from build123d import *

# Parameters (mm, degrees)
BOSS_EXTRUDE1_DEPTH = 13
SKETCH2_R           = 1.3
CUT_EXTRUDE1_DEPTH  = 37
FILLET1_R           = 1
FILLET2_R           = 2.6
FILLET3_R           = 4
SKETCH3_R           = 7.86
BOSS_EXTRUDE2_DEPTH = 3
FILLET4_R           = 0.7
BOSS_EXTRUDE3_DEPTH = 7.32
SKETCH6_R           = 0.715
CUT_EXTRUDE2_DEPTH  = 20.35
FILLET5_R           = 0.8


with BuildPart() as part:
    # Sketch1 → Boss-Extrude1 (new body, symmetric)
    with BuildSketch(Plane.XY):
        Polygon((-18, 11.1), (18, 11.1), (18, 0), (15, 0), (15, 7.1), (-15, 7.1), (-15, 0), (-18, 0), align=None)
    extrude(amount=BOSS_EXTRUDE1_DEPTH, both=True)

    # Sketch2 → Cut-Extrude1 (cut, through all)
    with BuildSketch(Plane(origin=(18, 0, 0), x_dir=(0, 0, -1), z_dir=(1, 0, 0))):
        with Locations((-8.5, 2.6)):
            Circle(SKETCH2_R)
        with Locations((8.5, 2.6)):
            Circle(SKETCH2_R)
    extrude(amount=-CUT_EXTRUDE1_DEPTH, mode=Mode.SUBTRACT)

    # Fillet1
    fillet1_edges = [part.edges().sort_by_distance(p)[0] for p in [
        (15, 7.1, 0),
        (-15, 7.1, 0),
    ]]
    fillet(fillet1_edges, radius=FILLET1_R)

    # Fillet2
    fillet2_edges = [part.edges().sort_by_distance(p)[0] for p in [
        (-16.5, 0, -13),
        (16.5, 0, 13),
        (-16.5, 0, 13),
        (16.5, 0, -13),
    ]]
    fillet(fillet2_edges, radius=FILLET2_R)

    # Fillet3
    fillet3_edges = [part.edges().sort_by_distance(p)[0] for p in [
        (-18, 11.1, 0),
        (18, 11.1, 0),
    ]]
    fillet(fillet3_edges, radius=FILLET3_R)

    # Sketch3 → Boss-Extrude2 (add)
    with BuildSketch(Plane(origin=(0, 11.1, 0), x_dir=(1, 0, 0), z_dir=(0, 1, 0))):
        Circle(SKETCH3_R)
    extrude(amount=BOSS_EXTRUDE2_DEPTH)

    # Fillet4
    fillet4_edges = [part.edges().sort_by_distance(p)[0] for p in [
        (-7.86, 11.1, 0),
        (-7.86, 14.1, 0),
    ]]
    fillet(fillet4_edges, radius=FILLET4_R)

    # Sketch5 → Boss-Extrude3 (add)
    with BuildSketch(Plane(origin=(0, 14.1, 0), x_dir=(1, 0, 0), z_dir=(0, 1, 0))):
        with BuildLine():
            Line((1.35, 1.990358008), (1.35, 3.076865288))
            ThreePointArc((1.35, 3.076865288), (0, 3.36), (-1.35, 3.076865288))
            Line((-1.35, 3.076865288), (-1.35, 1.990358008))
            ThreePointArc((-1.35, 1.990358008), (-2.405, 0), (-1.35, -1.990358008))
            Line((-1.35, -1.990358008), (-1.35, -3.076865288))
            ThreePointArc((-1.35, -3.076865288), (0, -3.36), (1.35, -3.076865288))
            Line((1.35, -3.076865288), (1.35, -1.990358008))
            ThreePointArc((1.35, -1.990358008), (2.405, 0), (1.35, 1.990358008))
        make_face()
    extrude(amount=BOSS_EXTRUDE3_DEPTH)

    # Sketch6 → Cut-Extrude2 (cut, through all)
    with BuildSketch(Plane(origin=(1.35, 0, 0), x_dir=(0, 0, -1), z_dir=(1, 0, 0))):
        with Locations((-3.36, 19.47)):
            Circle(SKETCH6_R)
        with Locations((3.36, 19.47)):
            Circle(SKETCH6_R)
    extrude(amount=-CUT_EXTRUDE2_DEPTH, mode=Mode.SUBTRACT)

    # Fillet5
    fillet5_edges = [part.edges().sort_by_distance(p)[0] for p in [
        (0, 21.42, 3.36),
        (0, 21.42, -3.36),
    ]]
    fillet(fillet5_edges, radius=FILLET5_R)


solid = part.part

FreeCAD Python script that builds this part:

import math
import FreeCAD as App
import Part
import Sketcher

V = App.Vector
Q = App.Units.Quantity


def edges_at(feature, points):
    """Names of the edges that pass closest to the given points."""
    edges = feature.Shape.Edges
    near = lambda p: min(range(len(edges)), key=lambda i: edges[i].distToShape(Part.Vertex(*p))[0])
    return sorted({f"Edge{near(p) + 1}" for p in points})

doc = App.newDocument("Part")
body = doc.addObject("PartDesign::Body", "Body")

sketch1 = body.newObject("Sketcher::SketchObject", "Sketch")
sketch1.AttachmentSupport = (doc.getObject("XY_Plane"), [""])
sketch1.MapMode = "FlatFace"
sketch1.addGeometry([
    Part.LineSegment(V(18, 11.1, 0), V(-18, 11.1, 0)),
    Part.LineSegment(V(-18, 11.1, 0), V(-18, 0, 0)),
    Part.LineSegment(V(-18, 0, 0), V(-15, 0, 0)),
    Part.LineSegment(V(-15, 0, 0), V(-15, 7.1, 0)),
    Part.LineSegment(V(-15, 7.1, 0), V(15, 7.1, 0)),
    Part.LineSegment(V(15, 7.1, 0), V(15, 0, 0)),
    Part.LineSegment(V(15, 0, 0), V(18, 0, 0)),
    Part.LineSegment(V(18, 0, 0), V(18, 11.1, 0)),
], False)
sketch1.addConstraint([
    Sketcher.Constraint("Coincident", 0, 2, 1, 1),
    Sketcher.Constraint("Coincident", 1, 2, 2, 1),
    Sketcher.Constraint("Coincident", 2, 2, 3, 1),
    Sketcher.Constraint("Coincident", 3, 2, 4, 1),
    Sketcher.Constraint("Coincident", 4, 2, 5, 1),
    Sketcher.Constraint("Coincident", 5, 2, 6, 1),
    Sketcher.Constraint("Coincident", 6, 2, 7, 1),
    Sketcher.Constraint("Coincident", 7, 2, 0, 1),
    Sketcher.Constraint("Horizontal", 0),
    Sketcher.Constraint("Vertical", 1),
    Sketcher.Constraint("Horizontal", 2),
    Sketcher.Constraint("Vertical", 3),
    Sketcher.Constraint("Horizontal", 4),
    Sketcher.Constraint("Vertical", 5),
    Sketcher.Constraint("Horizontal", 6),
    Sketcher.Constraint("Vertical", 7),
    Sketcher.Constraint("Symmetric", 2, 2, 5, 2, -1, 1),
    Sketcher.Constraint("Symmetric", 1, 2, 6, 2, -2),
    Sketcher.Constraint("DistanceX", 0, 2, 0, 1, Q("36 mm")),
    Sketcher.Constraint("DistanceX", 2, 1, 2, 2, Q("3 mm")),
    Sketcher.Constraint("DistanceY", 1, 2, 1, 1, Q("11.1 mm")),
    Sketcher.Constraint("DistanceY", 3, 1, 3, 2, Q("7.1 mm")),
])
pad1 = body.newObject("PartDesign::Pad", "Pad")
pad1.Profile = sketch1
pad1.Length = 26
pad1.Midplane = True

sketch2 = body.newObject("Sketcher::SketchObject", "Sketch001")
sketch2.AttachmentSupport = (doc.getObject("YZ_Plane"), [""])
sketch2.MapMode = "FlatFace"
sketch2.AttachmentOffset = App.Placement(V(0, 0, 18), App.Rotation())
sketch2.addGeometry([
    Part.Circle(V(2.6, 8.5, 0), V(0, 0, 1), 1.3),
    Part.Circle(V(2.6, -8.5, 0), V(0, 0, 1), 1.3),
], False)
sketch2.addConstraint([
    Sketcher.Constraint("Equal", 0, 1),
    Sketcher.Constraint("Symmetric", 0, 3, 1, 3, -1),
    Sketcher.Constraint("Diameter", 0, Q("2.6 mm")),
    Sketcher.Constraint("DistanceY", 1, 3, 0, 3, Q("17 mm")),
    Sketcher.Constraint("DistanceX", -1, 1, 0, 3, Q("2.6 mm")),
])
pocket1 = body.newObject("PartDesign::Pocket", "Pocket")
pocket1.Profile = sketch2
pocket1.Type = "ThroughAll"
doc.recompute()

fillet = body.newObject("PartDesign::Fillet", "Fillet")
fillet.Base = (pocket1, edges_at(pocket1, [(15, 7.1, 0), (-15, 7.1, 0)]))
fillet.Radius = 1
doc.recompute()

fillet2 = body.newObject("PartDesign::Fillet", "Fillet001")
fillet2.Base = (fillet, edges_at(fillet, [
    (-16.5, 0, -13),
    (16.5, 0, 13),
    (-16.5, 0, 13),
    (16.5, 0, -13),
]))
fillet2.Radius = 2.6
doc.recompute()

fillet3 = body.newObject("PartDesign::Fillet", "Fillet002")
fillet3.Base = (fillet2, edges_at(fillet2, [(-18, 11.1, 0), (18, 11.1, 0)]))
fillet3.Radius = 4

sketch3 = body.newObject("Sketcher::SketchObject", "Sketch002")
sketch3.AttachmentSupport = (doc.getObject("XZ_Plane"), [""])
sketch3.MapMode = "FlatFace"
sketch3.AttachmentOffset = App.Placement(V(0, 0, -11.1), App.Rotation())
sketch3.addGeometry(Part.Circle(V(0, 0, 0), V(0, 0, 1), 8), False)
sketch3.addConstraint([
    Sketcher.Constraint("Coincident", 0, 3, -1, 1),
    Sketcher.Constraint("Diameter", 0, Q("15.72 mm")),
])
pad2 = body.newObject("PartDesign::Pad", "Pad001")
pad2.Profile = sketch3
pad2.Length = 3
pad2.Reversed = True
doc.recompute()

fillet4 = body.newObject("PartDesign::Fillet", "Fillet003")
fillet4.Base = (pad2, edges_at(pad2, [(-7.86, 11.1, 0), (-7.86, 14.1, 0)]))
fillet4.Radius = 0.7

sketch4 = body.newObject("Sketcher::SketchObject", "Sketch003")
sketch4.AttachmentSupport = (doc.getObject("XZ_Plane"), [""])
sketch4.MapMode = "FlatFace"
sketch4.AttachmentOffset = App.Placement(V(0, 0, -14.1), App.Rotation())
sketch4.addGeometry([
    Part.LineSegment(V(1.4, -2, 0), V(1.4, -3.1, 0)),
    Part.ArcOfCircle(Part.Circle(V(0, 0, 0), V(0, 0, 1), 3.4), math.radians(-114), math.radians(-66)),
    Part.LineSegment(V(-1.4, -3.1, 0), V(-1.4, -2, 0)),
    Part.ArcOfCircle(Part.Circle(V(0, 0, 0), V(0, 0, 1), 2.4), math.radians(124), math.radians(236)),
    Part.LineSegment(V(-1.4, 2, 0), V(-1.4, 3.1, 0)),
    Part.ArcOfCircle(Part.Circle(V(0, 0, 0), V(0, 0, 1), 3.4), math.radians(66), math.radians(114)),
    Part.LineSegment(V(1.4, 3.1, 0), V(1.4, 2, 0)),
    Part.ArcOfCircle(Part.Circle(V(0, 0, 0), V(0, 0, 1), 2.4), math.radians(-56), math.radians(56)),
], False)
sketch4.addConstraint([
    Sketcher.Constraint("Coincident", 0, 2, 1, 2),
    Sketcher.Constraint("Coincident", 1, 1, 2, 1),
    Sketcher.Constraint("Coincident", 2, 2, 3, 2),
    Sketcher.Constraint("Coincident", 3, 1, 4, 1),
    Sketcher.Constraint("Coincident", 4, 2, 5, 2),
    Sketcher.Constraint("Coincident", 5, 1, 6, 1),
    Sketcher.Constraint("Coincident", 6, 2, 7, 2),
    Sketcher.Constraint("Coincident", 7, 1, 0, 1),
    Sketcher.Constraint("Vertical", 0),
    Sketcher.Constraint("Vertical", 2),
    Sketcher.Constraint("Vertical", 4),
    Sketcher.Constraint("Vertical", 6),
    Sketcher.Constraint("Coincident", 1, 3, -1, 1),
    Sketcher.Constraint("Coincident", 3, 3, -1, 1),
    Sketcher.Constraint("Coincident", 5, 3, -1, 1),
    Sketcher.Constraint("Coincident", 7, 3, -1, 1),
    Sketcher.Constraint("Equal", 1, 5),
    Sketcher.Constraint("Equal", 3, 7),
    Sketcher.Constraint("Horizontal", 0, 2, 1, 1),
    Sketcher.Constraint("Horizontal", 4, 2, 5, 1),
    Sketcher.Constraint("Vertical", 2, 2, 3, 1),
    Sketcher.Constraint("Radius", 1, Q("3.36 mm")),
    Sketcher.Constraint("Radius", 3, Q("2.405 mm")),
    Sketcher.Constraint("DistanceX", 1, 1, 0, 2, Q("2.7 mm")),
])
pad3 = body.newObject("PartDesign::Pad", "Pad002")
pad3.Profile = sketch4
pad3.Length = 7.32
pad3.Reversed = True

sketch5 = body.newObject("Sketcher::SketchObject", "Sketch004")
sketch5.AttachmentSupport = (doc.getObject("YZ_Plane"), [""])
sketch5.MapMode = "FlatFace"
sketch5.AttachmentOffset = App.Placement(V(0, 0, 1.35), App.Rotation())
sketch5.addGeometry([
    Part.Circle(V(19.5, 3.4, 0), V(0, 0, 1), 0.7),
    Part.Circle(V(19.5, -3.4, 0), V(0, 0, 1), 0.7),
], False)
sketch5.addConstraint([
    Sketcher.Constraint("Equal", 0, 1),
    Sketcher.Constraint("Symmetric", 0, 3, 1, 3, -1),
    Sketcher.Constraint("Diameter", 0, Q("1.43 mm")),
    Sketcher.Constraint("DistanceX", -1, 1, 0, 3, Q("19.47 mm")),
    Sketcher.Constraint("DistanceY", -1, 1, 0, 3, Q("3.36 mm")),
])
pocket2 = body.newObject("PartDesign::Pocket", "Pocket001")
pocket2.Profile = sketch5
pocket2.Type = "ThroughAll"
doc.recompute()

fillet5 = body.newObject("PartDesign::Fillet", "Fillet004")
fillet5.Base = (pocket2, edges_at(pocket2, [(0, 21.42, 3.36), (0, 21.42, -3.36)]))
fillet5.Radius = 0.8

doc.recompute()
